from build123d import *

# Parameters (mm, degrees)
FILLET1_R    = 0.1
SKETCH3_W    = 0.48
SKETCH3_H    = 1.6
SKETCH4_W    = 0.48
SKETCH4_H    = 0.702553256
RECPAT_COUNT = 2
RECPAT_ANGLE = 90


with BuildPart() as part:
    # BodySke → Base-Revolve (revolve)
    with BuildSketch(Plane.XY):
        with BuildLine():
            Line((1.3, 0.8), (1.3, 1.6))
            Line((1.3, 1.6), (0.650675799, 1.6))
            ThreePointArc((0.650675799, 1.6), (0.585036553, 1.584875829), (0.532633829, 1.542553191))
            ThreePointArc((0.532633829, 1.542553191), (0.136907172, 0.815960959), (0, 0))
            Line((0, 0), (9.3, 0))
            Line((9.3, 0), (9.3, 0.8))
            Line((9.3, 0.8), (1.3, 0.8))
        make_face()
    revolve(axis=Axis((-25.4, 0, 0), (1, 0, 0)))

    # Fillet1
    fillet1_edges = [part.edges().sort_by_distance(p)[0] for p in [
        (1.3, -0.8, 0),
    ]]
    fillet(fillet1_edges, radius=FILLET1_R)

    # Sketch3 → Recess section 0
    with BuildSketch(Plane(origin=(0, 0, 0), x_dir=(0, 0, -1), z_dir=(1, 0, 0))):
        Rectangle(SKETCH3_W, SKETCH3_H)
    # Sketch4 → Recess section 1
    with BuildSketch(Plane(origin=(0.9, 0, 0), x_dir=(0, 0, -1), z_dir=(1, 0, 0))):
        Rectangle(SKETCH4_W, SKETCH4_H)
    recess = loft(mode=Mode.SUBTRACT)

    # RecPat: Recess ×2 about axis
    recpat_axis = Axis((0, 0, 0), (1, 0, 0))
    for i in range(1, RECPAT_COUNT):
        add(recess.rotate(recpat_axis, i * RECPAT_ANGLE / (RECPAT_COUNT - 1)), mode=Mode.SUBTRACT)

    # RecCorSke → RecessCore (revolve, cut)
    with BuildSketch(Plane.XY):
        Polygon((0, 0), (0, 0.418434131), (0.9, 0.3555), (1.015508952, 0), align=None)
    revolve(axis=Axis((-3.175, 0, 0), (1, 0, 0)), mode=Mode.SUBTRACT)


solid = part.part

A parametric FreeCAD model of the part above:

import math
import FreeCAD as App
import Part
import Sketcher
Q = App.Units.Quantity


def edges_at(feature, points):
    """Names of the edges that pass closest to the given points."""
    edges = feature.Shape.Edges
    near = lambda p: min(range(len(edges)), key=lambda i: edges[i].distToShape(Part.Vertex(*p))[0])
    return sorted({f"Edge{near(p) + 1}" for p in points})


def add_polygon(sketch, points):
    """Adds a closed chain of lines whose ends are joined by coincident constraints."""
    first, n = sketch.GeometryCount, len(points)
    for a, b in zip(points, points[1:] + points[:1]):
        sketch.addGeometry(Part.LineSegment(App.Vector(*a, 0), App.Vector(*b, 0)), False)
    for i in range(n):
        sketch.addConstraint(Sketcher.Constraint("Coincident", first + i, 2, first + (i + 1) % n, 1))

doc = App.newDocument("Part")
body = doc.addObject("PartDesign::Body", "Body")

# Sketch on XY plane
sketch1 = body.newObject("Sketcher::SketchObject", "Sketch")
sketch1.AttachmentSupport = (doc.getObject("XY_Plane"), [""])
sketch1.MapMode = "FlatFace"
sketch1.addGeometry([
    Part.LineSegment(App.Vector(1.3, 0.8, 0), App.Vector(1.3, 1.6, 0)),  # 0
    Part.LineSegment(App.Vector(1.3, 1.6, 0), App.Vector(0.65, 1.6, 0)),  # 1
    Part.ArcOfCircle(Part.Circle(App.Vector(0.65, 1.45, 0), App.Vector(0, 0, 1), 0.15), math.radians(90), math.radians(142)),  # 2
    Part.ArcOfCircle(Part.Circle(App.Vector(2.5, 0, 0), App.Vector(0, 0, 1), 2.5), math.radians(142), math.radians(180)),  # 3
    Part.LineSegment(App.Vector(0, 0, 0), App.Vector(9.3, 0, 0)),  # 4
    Part.LineSegment(App.Vector(9.3, 0, 0), App.Vector(9.3, 0.8, 0)),  # 5
    Part.LineSegment(App.Vector(9.3, 0.8, 0), App.Vector(1.3, 0.8, 0)),  # 6
], False)
sketch1.addConstraint([
    Sketcher.Constraint("Coincident", 0, 2, 1, 1),
    Sketcher.Constraint("Tangent", 1, 2, 2, 1),
    Sketcher.Constraint("Tangent", 2, 2, 3, 1),
    Sketcher.Constraint("Coincident", 3, 2, 4, 1),
    Sketcher.Constraint("Coincident", 4, 2, 5, 1),
    Sketcher.Constraint("Coincident", 5, 2, 6, 1),
    Sketcher.Constraint("Coincident", 6, 2, 0, 1),
    Sketcher.Constraint("Vertical", 0),
    Sketcher.Constraint("Horizontal", 1),
    Sketcher.Constraint("Horizontal", 4),
    Sketcher.Constraint("Vertical", 5),
    Sketcher.Constraint("Horizontal", 6),
    Sketcher.Constraint("Coincident", 3, 2, -1, 1),
    Sketcher.Constraint("PointOnObject", 3, 3, -1),
    Sketcher.Constraint("Equal", 0, 5),
    Sketcher.Constraint("Radius", 3, 2.5),
    Sketcher.Constraint("DistanceX", 6, 2, 6, 1, 8.0),
    Sketcher.Constraint("Radius", 2, 0.15),
    Sketcher.Constraint("DistanceX", 4, 1, 4, 2, 9.3),
    Sketcher.Constraint("DistanceY", 0, 1, 0, 2, 0.8),
])
revolution = body.newObject("PartDesign::Revolution", "Revolution")
revolution.Profile = sketch1
revolution.ReferenceAxis = (sketch1, ["H_Axis"])
revolution.Angle = 360
doc.recompute()

fillet = body.newObject("PartDesign::Fillet", "Fillet")
fillet.Base = (revolution, edges_at(revolution, [(1.3, -0.8, 0)]))
fillet.Radius = 0.1

# Sketch on YZ plane
sketch2 = body.newObject("Sketcher::SketchObject", "Sketch001")
sketch2.AttachmentSupport = (doc.getObject("YZ_Plane"), [""])
sketch2.MapMode = "FlatFace"
add_polygon(sketch2, [(0.8, 0.24), (-0.8, 0.24), (-0.8, -0.24), (0.8, -0.24)])  # lines 0-3
sketch2.addConstraint([
    Sketcher.Constraint("Horizontal", 0),
    Sketcher.Constraint("Vertical", 1),
    Sketcher.Constraint("Horizontal", 2),
    Sketcher.Constraint("Vertical", 3),
    Sketcher.Constraint("Symmetric", 0, 2, 2, 2, -1, 1),
    Sketcher.Constraint("DistanceX", 0, 2, 0, 1, 1.6),
    Sketcher.Constraint("DistanceY", 1, 2, 1, 1, 0.48),
])

# Sketch on YZ plane
sketch3 = body.newObject("Sketcher::SketchObject", "Sketch002")
sketch3.AttachmentSupport = (doc.getObject("YZ_Plane"), [""])
sketch3.MapMode = "FlatFace"
sketch3.AttachmentOffset = App.Placement(App.Vector(0, 0, 0.9), App.Rotation())
add_polygon(sketch3, [(0.35, 0.24), (-0.35, 0.24), (-0.35, -0.24), (0.35, -0.24)])  # lines 0-3
sketch3.addConstraint([
    Sketcher.Constraint("Horizontal", 0),
    Sketcher.Constraint("Vertical", 1),
    Sketcher.Constraint("Horizontal", 2),
    Sketcher.Constraint("Vertical", 3),
    Sketcher.Constraint("Symmetric", 0, 2, 2, 2, -1, 1),
    Sketcher.Constraint("DistanceY", 1, 2, 1, 1, 0.48),
    Sketcher.Constraint("DistanceX", 0, 2, 0, 1, 0.702553),
])

subtractiveloft = body.newObject("PartDesign::SubtractiveLoft", "SubtractiveLoft")
subtractiveloft.Profile = sketch2
subtractiveloft.Sections = [sketch3]
doc.recompute()

polarpattern = body.newObject("PartDesign::PolarPattern", "PolarPattern")
polarpattern.Originals = [subtractiveloft]
polarpattern.Axis = (doc.getObject("X_Axis"), [""])
polarpattern.Angle = 90
polarpattern.Occurrences = 2
body.Tip = polarpattern

# Sketch on XY plane
sketch4 = body.newObject("Sketcher::SketchObject", "Sketch003")
sketch4.AttachmentSupport = (doc.getObject("XY_Plane"), [""])
sketch4.MapMode = "FlatFace"
add_polygon(sketch4, [(0, 0.42), (0, 0), (1.02, 0), (0.9, 0.36)])  # lines 0-3
sketch4.addConstraint([
    Sketcher.Constraint("Vertical", 0),
    Sketcher.Constraint("Horizontal", 1),
    Sketcher.Constraint("Coincident", 0, 2, -1, 1),
    Sketcher.Constraint("Angle", 2, Q("108 deg")),
    Sketcher.Constraint("Angle", 3, Q("176 deg")),
    Sketcher.Constraint("DistanceX", -1, 1, 2, 2, 0.9),
    Sketcher.Constraint("DistanceX", 1, 1, 1, 2, 1.015509),
])
groove = body.newObject("PartDesign::Groove", "Groove")
groove.Profile = sketch4
groove.ReferenceAxis = (sketch4, ["H_Axis"])
groove.Angle = 360

doc.recompute()
